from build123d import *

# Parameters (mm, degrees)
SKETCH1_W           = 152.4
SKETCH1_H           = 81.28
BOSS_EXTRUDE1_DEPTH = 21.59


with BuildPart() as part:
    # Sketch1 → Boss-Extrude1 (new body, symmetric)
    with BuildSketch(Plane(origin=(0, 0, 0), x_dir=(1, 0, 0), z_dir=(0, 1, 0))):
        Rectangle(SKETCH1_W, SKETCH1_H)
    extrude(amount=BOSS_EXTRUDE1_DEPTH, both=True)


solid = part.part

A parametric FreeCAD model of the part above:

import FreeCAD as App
import Part
import Sketcher

V = App.Vector
Q = App.Units.Quantity


def add_polygon(sketch, points):
    """Adds a closed chain of lines whose ends are joined by coincident constraints."""
    first, n = sketch.GeometryCount, len(points)
    for a, b in zip(points, points[1:] + points[:1]):
        sketch.addGeometry(Part.LineSegment(App.Vector(*a, 0), App.Vector(*b, 0)), False)
    for i in range(n):
        sketch.addConstraint(Sketcher.Constraint("Coincident", first + i, 2, first + (i + 1) % n, 1))

doc = App.newDocument("Part")
body = doc.addObject("PartDesign::Body", "Body")

sketch1 = body.newObject("Sketcher::SketchObject", "Sketch")
sketch1.AttachmentSupport = (doc.getObject("XZ_Plane"), [""])
sketch1.MapMode = "FlatFace"
add_polygon(sketch1, [(-76.2, -40.64), (-76.2, 40.64), (76.2, 40.64), (76.2, -40.64)])
sketch1.addConstraint([
    Sketcher.Constraint("Vertical", 0),
    Sketcher.Constraint("Horizontal", 1),
    Sketcher.Constraint("Vertical", 2),
    Sketcher.Constraint("Horizontal", 3),
    Sketcher.Constraint("Symmetric", 0, 2, 2, 2, -1, 1),
    Sketcher.Constraint("DistanceX", 1, 1, 1, 2, Q("6 in")),
    Sketcher.Constraint("DistanceY", 0, 1, 0, 2, Q("3.2 in")),
])
pad1 = body.newObject("PartDesign::Pad", "Pad")
pad1.Profile = sketch1
pad1.Length = Q("1.7 in")
pad1.Midplane = True

doc.recompute()
